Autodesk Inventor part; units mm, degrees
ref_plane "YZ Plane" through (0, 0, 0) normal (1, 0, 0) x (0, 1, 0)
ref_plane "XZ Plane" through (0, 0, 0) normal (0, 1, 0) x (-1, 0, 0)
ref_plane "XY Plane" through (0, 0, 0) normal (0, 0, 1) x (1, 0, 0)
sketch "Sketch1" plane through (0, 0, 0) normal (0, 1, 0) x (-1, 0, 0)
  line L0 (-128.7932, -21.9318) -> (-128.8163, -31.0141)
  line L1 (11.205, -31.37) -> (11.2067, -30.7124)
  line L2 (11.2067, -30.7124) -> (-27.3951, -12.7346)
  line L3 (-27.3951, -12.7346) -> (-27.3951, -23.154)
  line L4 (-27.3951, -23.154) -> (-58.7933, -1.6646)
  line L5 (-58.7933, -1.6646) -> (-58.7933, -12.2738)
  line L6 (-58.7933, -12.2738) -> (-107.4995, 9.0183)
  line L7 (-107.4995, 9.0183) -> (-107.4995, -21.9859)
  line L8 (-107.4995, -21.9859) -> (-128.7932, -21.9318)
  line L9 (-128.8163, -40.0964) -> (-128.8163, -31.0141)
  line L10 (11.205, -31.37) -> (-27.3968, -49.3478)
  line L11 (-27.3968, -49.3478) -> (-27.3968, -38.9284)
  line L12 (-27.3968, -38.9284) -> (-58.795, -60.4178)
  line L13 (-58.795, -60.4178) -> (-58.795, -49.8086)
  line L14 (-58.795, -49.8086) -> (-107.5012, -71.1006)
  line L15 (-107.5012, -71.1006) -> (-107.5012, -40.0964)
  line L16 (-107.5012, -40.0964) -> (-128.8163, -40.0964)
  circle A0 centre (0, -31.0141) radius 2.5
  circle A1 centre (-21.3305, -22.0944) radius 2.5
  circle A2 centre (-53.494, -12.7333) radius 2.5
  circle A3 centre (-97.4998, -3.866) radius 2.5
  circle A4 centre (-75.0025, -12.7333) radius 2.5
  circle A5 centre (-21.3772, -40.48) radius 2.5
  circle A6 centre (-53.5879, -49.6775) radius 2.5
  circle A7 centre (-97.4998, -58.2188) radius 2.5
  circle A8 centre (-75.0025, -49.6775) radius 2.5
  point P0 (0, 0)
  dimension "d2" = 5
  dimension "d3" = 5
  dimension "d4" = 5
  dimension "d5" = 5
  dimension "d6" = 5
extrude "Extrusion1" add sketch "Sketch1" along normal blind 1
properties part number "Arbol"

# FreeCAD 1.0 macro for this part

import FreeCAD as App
import Part
import Sketcher
from FreeCAD import Vector

doc = App.newDocument("Part")
body = doc.addObject("PartDesign::Body", "Body")

# Sketch on XZ plane
sketch1 = body.newObject("Sketcher::SketchObject", "Sketch")
sketch1.AttachmentSupport = (doc.getObject("XZ_Plane"), [""])
sketch1.MapMode = "FlatFace"
sketch1.addGeometry(Part.LineSegment(Vector(107.5, -22, 0), Vector(128.8, -21.9, 0)), False)
sketch1.addGeometry(Part.LineSegment(Vector(128.8, -21.9, 0), Vector(128.8, -31, 0)), False)
sketch1.addGeometry(Part.LineSegment(Vector(128.8, -31, 0), Vector(128.8, -40.1, 0)), False)
sketch1.addGeometry(Part.LineSegment(Vector(128.8, -40.1, 0), Vector(107.5, -40.1, 0)), False)
sketch1.addGeometry(Part.LineSegment(Vector(107.5, -40.1, 0), Vector(107.5, -71.1, 0)), False)
sketch1.addGeometry(Part.LineSegment(Vector(107.5, -71.1, 0), Vector(58.8, -49.8, 0)), False)
sketch1.addGeometry(Part.LineSegment(Vector(58.8, -49.8, 0), Vector(58.8, -60.4, 0)), False)
sketch1.addGeometry(Part.LineSegment(Vector(58.8, -60.4, 0), Vector(27.4, -38.9, 0)), False)
sketch1.addGeometry(Part.LineSegment(Vector(27.4, -38.9, 0), Vector(27.4, -49.3, 0)), False)
sketch1.addGeometry(Part.LineSegment(Vector(27.4, -49.3, 0), Vector(-11.2, -31.4, 0)), False)
sketch1.addGeometry(Part.LineSegment(Vector(-11.2, -31.4, 0), Vector(-11.2, -30.7, 0)), False)
sketch1.addGeometry(Part.LineSegment(Vector(-11.2, -30.7, 0), Vector(27.4, -12.7, 0)), False)
sketch1.addGeometry(Part.LineSegment(Vector(27.4, -12.7, 0), Vector(27.4, -23.2, 0)), False)
sketch1.addGeometry(Part.LineSegment(Vector(27.4, -23.2, 0), Vector(58.8, -1.7, 0)), False)
sketch1.addGeometry(Part.LineSegment(Vector(58.8, -1.7, 0), Vector(58.8, -12.3, 0)), False)
sketch1.addGeometry(Part.LineSegment(Vector(58.8, -12.3, 0), Vector(107.5, 9, 0)), False)
sketch1.addGeometry(Part.LineSegment(Vector(107.5, 9, 0), Vector(107.5, -22, 0)), False)
sketch1.addGeometry(Part.Circle(Vector(97.5, -58.2, 0), Vector(0, 0, 1), 2.5), False)
sketch1.addGeometry(Part.Circle(Vector(75, -49.7, 0), Vector(0, 0, 1), 2.5), False)
sketch1.addGeometry(Part.Circle(Vector(53.6, -49.7, 0), Vector(0, 0, 1), 2.5), False)
sketch1.addGeometry(Part.Circle(Vector(21.4, -40.5, 0), Vector(0, 0, 1), 2.5), False)
sketch1.addGeometry(Part.Circle(Vector(75, -12.7, 0), Vector(0, 0, 1), 2.5), False)
sketch1.addGeometry(Part.Circle(Vector(97.5, -3.9, 0), Vector(0, 0, 1), 2.5), False)
sketch1.addGeometry(Part.Circle(Vector(53.5, -12.7, 0), Vector(0, 0, 1), 2.5), False)
sketch1.addGeometry(Part.Circle(Vector(21.3, -22.1, 0), Vector(0, 0, 1), 2.5), False)
sketch1.addGeometry(Part.Circle(Vector(0, -31, 0), Vector(0, 0, 1), 2.5), False)
sketch1.addConstraint(Sketcher.Constraint("Coincident", 0, 2, 1, 1))
sketch1.addConstraint(Sketcher.Constraint("Coincident", 1, 2, 2, 1))
sketch1.addConstraint(Sketcher.Constraint("Coincident", 2, 2, 3, 1))
sketch1.addConstraint(Sketcher.Constraint("Coincident", 3, 2, 4, 1))
sketch1.addConstraint(Sketcher.Constraint("Coincident", 4, 2, 5, 1))
sketch1.addConstraint(Sketcher.Constraint("Coincident", 5, 2, 6, 1))
sketch1.addConstraint(Sketcher.Constraint("Coincident", 6, 2, 7, 1))
sketch1.addConstraint(Sketcher.Constraint("Coincident", 7, 2, 8, 1))
sketch1.addConstraint(Sketcher.Constraint("Coincident", 8, 2, 9, 1))
sketch1.addConstraint(Sketcher.Constraint("Coincident", 9, 2, 10, 1))
sketch1.addConstraint(Sketcher.Constraint("Coincident", 10, 2, 11, 1))
sketch1.addConstraint(Sketcher.Constraint("Coincident", 11, 2, 12, 1))
sketch1.addConstraint(Sketcher.Constraint("Coincident", 12, 2, 13, 1))
sketch1.addConstraint(Sketcher.Constraint("Coincident", 13, 2, 14, 1))
sketch1.addConstraint(Sketcher.Constraint("Coincident", 14, 2, 15, 1))
sketch1.addConstraint(Sketcher.Constraint("Coincident", 15, 2, 16, 1))
sketch1.addConstraint(Sketcher.Constraint("Coincident", 16, 2, 0, 1))
sketch1.addConstraint(Sketcher.Constraint("Vertical", 2))
sketch1.addConstraint(Sketcher.Constraint("Horizontal", 3))
sketch1.addConstraint(Sketcher.Constraint("Vertical", 4))
sketch1.addConstraint(Sketcher.Constraint("Vertical", 6))
sketch1.addConstraint(Sketcher.Constraint("Vertical", 8))
sketch1.addConstraint(Sketcher.Constraint("Vertical", 12))
sketch1.addConstraint(Sketcher.Constraint("Vertical", 14))
sketch1.addConstraint(Sketcher.Constraint("Vertical", 16))
sketch1.addConstraint(Sketcher.Constraint("Equal", 17, 18))
sketch1.addConstraint(Sketcher.Constraint("Equal", 18, 19))
sketch1.addConstraint(Sketcher.Constraint("Equal", 19, 20))
sketch1.addConstraint(Sketcher.Constraint("Equal", 20, 21))
sketch1.addConstraint(Sketcher.Constraint("Equal", 21, 22))
sketch1.addConstraint(Sketcher.Constraint("Equal", 22, 23))
sketch1.addConstraint(Sketcher.Constraint("Equal", 23, 24))
sketch1.addConstraint(Sketcher.Constraint("Equal", 24, 25))
sketch1.addConstraint(Sketcher.Constraint("PointOnObject", 25, 3, -2))
sketch1.addConstraint(Sketcher.Constraint("Perpendicular", 0, 1))
sketch1.addConstraint(Sketcher.Constraint("Parallel", 1, 10))
sketch1.addConstraint(Sketcher.Constraint("Horizontal", 18, 3, 19, 3))
sketch1.addConstraint(Sketcher.Constraint("Horizontal", 21, 3, 23, 3))
sketch1.addConstraint(Sketcher.Constraint("Horizontal", 25, 3, 1, 2))
sketch1.addConstraint(Sketcher.Constraint("Vertical", 18, 3, 21, 3))
sketch1.addConstraint(Sketcher.Constraint("Vertical", 17, 3, 22, 3))
sketch1.addConstraint(Sketcher.Constraint("Equal", 8, 12))
sketch1.addConstraint(Sketcher.Constraint("Equal", 6, 14))
sketch1.addConstraint(Sketcher.Constraint("Equal", 4, 16))
sketch1.addConstraint(Sketcher.Constraint("Equal", 9, 11))
sketch1.addConstraint(Sketcher.Constraint("Equal", 7, 13))
sketch1.addConstraint(Sketcher.Constraint("Equal", 5, 15))
sketch1.addConstraint(Sketcher.Constraint("Diameter", 17, 5.0))
sketch1.addConstraint(Sketcher.Constraint("DistanceX", 3, 2, 3, 1, 21.315))
sketch1.addConstraint(Sketcher.Constraint("DistanceY", 20, 3, -1, 1, 40.48))
sketch1.addConstraint(Sketcher.Constraint("DistanceY", 9, 2, -1, 1, 31.37))
sketch1.addConstraint(Sketcher.Constraint("DistanceY", 11, 2, 13, 2, 11.07))
sketch1.addConstraint(Sketcher.Constraint("DistanceY", 0, 2, 15, 2, 30.95))
sketch1.addConstraint(Sketcher.Constraint("DistanceY", 16, 2, 22, 3, 18.12))
sketch1.addConstraint(Sketcher.Constraint("Distance", 7, 38.048))
sketch1.addConstraint(Sketcher.Constraint("DistanceY", 2, 2, 2, 1, 9.0823))
sketch1.addConstraint(Sketcher.Constraint("DistanceY", 4, 2, 4, 1, 31.0042))
sketch1.addConstraint(Sketcher.Constraint("DistanceY", 6, 2, 6, 1, 10.6092))
sketch1.addConstraint(Sketcher.Constraint("DistanceY", 8, 2, 8, 1, 10.4194))
sketch1.addConstraint(Sketcher.Constraint("DistanceX", -1, 1, 19, 3, 53.588))
sketch1.addConstraint(Sketcher.Constraint("DistanceY", 22, 3, -1, 1, 3.866))
sketch1.addConstraint(Sketcher.Constraint("DistanceX", -1, 1, 23, 3, 53.494))
sketch1.addConstraint(Sketcher.Constraint("DistanceY", 25, 3, -1, 1, 31.014))
sketch1.addConstraint(Sketcher.Constraint("DistanceX", -1, 1, 5, 2, 58.795))
sketch1.addConstraint(Sketcher.Constraint("DistanceX", 9, 2, -1, 1, 11.205))
sketch1.addConstraint(Sketcher.Constraint("DistanceX", -1, 1, 11, 2, 27.395))
sketch1.addConstraint(Sketcher.Constraint("DistanceY", 12, 2, -1, 1, 23.154))
sketch1.addConstraint(Sketcher.Constraint("DistanceX", 19, 3, 17, 3, 43.912))
sketch1.addConstraint(Sketcher.Constraint("DistanceY", 24, 3, 23, 3, 9.361))
sketch1.addConstraint(Sketcher.Constraint("DistanceY", 19, 3, 24, 3, 27.583))
sketch1.addConstraint(Sketcher.Constraint("DistanceX", 24, 3, 21, 3, 53.672))
sketch1.addConstraint(Sketcher.Constraint("DistanceY", 17, 3, 0, 2, 36.287))
sketch1.addConstraint(Sketcher.Constraint("DistanceY", 18, 3, 2, 2, 9.581))
sketch1.addConstraint(Sketcher.Constraint("DistanceY", 5, 2, 19, 3, 0.131))
sketch1.addConstraint(Sketcher.Constraint("DistanceY", 7, 2, 24, 3, 16.834))
sketch1.addConstraint(Sketcher.Constraint("DistanceX", 10, 2, 20, 3, 32.584))
sketch1.addConstraint(Sketcher.Constraint("DistanceX", 21, 3, 15, 2, 32.497))
sketch1.addConstraint(Sketcher.Constraint("Distance", 5, 53.1568))
pad1 = body.newObject("PartDesign::Pad", "Pad")
pad1.Profile = sketch1
pad1.Length = 1
pad1.Reversed = True

doc.recompute()
